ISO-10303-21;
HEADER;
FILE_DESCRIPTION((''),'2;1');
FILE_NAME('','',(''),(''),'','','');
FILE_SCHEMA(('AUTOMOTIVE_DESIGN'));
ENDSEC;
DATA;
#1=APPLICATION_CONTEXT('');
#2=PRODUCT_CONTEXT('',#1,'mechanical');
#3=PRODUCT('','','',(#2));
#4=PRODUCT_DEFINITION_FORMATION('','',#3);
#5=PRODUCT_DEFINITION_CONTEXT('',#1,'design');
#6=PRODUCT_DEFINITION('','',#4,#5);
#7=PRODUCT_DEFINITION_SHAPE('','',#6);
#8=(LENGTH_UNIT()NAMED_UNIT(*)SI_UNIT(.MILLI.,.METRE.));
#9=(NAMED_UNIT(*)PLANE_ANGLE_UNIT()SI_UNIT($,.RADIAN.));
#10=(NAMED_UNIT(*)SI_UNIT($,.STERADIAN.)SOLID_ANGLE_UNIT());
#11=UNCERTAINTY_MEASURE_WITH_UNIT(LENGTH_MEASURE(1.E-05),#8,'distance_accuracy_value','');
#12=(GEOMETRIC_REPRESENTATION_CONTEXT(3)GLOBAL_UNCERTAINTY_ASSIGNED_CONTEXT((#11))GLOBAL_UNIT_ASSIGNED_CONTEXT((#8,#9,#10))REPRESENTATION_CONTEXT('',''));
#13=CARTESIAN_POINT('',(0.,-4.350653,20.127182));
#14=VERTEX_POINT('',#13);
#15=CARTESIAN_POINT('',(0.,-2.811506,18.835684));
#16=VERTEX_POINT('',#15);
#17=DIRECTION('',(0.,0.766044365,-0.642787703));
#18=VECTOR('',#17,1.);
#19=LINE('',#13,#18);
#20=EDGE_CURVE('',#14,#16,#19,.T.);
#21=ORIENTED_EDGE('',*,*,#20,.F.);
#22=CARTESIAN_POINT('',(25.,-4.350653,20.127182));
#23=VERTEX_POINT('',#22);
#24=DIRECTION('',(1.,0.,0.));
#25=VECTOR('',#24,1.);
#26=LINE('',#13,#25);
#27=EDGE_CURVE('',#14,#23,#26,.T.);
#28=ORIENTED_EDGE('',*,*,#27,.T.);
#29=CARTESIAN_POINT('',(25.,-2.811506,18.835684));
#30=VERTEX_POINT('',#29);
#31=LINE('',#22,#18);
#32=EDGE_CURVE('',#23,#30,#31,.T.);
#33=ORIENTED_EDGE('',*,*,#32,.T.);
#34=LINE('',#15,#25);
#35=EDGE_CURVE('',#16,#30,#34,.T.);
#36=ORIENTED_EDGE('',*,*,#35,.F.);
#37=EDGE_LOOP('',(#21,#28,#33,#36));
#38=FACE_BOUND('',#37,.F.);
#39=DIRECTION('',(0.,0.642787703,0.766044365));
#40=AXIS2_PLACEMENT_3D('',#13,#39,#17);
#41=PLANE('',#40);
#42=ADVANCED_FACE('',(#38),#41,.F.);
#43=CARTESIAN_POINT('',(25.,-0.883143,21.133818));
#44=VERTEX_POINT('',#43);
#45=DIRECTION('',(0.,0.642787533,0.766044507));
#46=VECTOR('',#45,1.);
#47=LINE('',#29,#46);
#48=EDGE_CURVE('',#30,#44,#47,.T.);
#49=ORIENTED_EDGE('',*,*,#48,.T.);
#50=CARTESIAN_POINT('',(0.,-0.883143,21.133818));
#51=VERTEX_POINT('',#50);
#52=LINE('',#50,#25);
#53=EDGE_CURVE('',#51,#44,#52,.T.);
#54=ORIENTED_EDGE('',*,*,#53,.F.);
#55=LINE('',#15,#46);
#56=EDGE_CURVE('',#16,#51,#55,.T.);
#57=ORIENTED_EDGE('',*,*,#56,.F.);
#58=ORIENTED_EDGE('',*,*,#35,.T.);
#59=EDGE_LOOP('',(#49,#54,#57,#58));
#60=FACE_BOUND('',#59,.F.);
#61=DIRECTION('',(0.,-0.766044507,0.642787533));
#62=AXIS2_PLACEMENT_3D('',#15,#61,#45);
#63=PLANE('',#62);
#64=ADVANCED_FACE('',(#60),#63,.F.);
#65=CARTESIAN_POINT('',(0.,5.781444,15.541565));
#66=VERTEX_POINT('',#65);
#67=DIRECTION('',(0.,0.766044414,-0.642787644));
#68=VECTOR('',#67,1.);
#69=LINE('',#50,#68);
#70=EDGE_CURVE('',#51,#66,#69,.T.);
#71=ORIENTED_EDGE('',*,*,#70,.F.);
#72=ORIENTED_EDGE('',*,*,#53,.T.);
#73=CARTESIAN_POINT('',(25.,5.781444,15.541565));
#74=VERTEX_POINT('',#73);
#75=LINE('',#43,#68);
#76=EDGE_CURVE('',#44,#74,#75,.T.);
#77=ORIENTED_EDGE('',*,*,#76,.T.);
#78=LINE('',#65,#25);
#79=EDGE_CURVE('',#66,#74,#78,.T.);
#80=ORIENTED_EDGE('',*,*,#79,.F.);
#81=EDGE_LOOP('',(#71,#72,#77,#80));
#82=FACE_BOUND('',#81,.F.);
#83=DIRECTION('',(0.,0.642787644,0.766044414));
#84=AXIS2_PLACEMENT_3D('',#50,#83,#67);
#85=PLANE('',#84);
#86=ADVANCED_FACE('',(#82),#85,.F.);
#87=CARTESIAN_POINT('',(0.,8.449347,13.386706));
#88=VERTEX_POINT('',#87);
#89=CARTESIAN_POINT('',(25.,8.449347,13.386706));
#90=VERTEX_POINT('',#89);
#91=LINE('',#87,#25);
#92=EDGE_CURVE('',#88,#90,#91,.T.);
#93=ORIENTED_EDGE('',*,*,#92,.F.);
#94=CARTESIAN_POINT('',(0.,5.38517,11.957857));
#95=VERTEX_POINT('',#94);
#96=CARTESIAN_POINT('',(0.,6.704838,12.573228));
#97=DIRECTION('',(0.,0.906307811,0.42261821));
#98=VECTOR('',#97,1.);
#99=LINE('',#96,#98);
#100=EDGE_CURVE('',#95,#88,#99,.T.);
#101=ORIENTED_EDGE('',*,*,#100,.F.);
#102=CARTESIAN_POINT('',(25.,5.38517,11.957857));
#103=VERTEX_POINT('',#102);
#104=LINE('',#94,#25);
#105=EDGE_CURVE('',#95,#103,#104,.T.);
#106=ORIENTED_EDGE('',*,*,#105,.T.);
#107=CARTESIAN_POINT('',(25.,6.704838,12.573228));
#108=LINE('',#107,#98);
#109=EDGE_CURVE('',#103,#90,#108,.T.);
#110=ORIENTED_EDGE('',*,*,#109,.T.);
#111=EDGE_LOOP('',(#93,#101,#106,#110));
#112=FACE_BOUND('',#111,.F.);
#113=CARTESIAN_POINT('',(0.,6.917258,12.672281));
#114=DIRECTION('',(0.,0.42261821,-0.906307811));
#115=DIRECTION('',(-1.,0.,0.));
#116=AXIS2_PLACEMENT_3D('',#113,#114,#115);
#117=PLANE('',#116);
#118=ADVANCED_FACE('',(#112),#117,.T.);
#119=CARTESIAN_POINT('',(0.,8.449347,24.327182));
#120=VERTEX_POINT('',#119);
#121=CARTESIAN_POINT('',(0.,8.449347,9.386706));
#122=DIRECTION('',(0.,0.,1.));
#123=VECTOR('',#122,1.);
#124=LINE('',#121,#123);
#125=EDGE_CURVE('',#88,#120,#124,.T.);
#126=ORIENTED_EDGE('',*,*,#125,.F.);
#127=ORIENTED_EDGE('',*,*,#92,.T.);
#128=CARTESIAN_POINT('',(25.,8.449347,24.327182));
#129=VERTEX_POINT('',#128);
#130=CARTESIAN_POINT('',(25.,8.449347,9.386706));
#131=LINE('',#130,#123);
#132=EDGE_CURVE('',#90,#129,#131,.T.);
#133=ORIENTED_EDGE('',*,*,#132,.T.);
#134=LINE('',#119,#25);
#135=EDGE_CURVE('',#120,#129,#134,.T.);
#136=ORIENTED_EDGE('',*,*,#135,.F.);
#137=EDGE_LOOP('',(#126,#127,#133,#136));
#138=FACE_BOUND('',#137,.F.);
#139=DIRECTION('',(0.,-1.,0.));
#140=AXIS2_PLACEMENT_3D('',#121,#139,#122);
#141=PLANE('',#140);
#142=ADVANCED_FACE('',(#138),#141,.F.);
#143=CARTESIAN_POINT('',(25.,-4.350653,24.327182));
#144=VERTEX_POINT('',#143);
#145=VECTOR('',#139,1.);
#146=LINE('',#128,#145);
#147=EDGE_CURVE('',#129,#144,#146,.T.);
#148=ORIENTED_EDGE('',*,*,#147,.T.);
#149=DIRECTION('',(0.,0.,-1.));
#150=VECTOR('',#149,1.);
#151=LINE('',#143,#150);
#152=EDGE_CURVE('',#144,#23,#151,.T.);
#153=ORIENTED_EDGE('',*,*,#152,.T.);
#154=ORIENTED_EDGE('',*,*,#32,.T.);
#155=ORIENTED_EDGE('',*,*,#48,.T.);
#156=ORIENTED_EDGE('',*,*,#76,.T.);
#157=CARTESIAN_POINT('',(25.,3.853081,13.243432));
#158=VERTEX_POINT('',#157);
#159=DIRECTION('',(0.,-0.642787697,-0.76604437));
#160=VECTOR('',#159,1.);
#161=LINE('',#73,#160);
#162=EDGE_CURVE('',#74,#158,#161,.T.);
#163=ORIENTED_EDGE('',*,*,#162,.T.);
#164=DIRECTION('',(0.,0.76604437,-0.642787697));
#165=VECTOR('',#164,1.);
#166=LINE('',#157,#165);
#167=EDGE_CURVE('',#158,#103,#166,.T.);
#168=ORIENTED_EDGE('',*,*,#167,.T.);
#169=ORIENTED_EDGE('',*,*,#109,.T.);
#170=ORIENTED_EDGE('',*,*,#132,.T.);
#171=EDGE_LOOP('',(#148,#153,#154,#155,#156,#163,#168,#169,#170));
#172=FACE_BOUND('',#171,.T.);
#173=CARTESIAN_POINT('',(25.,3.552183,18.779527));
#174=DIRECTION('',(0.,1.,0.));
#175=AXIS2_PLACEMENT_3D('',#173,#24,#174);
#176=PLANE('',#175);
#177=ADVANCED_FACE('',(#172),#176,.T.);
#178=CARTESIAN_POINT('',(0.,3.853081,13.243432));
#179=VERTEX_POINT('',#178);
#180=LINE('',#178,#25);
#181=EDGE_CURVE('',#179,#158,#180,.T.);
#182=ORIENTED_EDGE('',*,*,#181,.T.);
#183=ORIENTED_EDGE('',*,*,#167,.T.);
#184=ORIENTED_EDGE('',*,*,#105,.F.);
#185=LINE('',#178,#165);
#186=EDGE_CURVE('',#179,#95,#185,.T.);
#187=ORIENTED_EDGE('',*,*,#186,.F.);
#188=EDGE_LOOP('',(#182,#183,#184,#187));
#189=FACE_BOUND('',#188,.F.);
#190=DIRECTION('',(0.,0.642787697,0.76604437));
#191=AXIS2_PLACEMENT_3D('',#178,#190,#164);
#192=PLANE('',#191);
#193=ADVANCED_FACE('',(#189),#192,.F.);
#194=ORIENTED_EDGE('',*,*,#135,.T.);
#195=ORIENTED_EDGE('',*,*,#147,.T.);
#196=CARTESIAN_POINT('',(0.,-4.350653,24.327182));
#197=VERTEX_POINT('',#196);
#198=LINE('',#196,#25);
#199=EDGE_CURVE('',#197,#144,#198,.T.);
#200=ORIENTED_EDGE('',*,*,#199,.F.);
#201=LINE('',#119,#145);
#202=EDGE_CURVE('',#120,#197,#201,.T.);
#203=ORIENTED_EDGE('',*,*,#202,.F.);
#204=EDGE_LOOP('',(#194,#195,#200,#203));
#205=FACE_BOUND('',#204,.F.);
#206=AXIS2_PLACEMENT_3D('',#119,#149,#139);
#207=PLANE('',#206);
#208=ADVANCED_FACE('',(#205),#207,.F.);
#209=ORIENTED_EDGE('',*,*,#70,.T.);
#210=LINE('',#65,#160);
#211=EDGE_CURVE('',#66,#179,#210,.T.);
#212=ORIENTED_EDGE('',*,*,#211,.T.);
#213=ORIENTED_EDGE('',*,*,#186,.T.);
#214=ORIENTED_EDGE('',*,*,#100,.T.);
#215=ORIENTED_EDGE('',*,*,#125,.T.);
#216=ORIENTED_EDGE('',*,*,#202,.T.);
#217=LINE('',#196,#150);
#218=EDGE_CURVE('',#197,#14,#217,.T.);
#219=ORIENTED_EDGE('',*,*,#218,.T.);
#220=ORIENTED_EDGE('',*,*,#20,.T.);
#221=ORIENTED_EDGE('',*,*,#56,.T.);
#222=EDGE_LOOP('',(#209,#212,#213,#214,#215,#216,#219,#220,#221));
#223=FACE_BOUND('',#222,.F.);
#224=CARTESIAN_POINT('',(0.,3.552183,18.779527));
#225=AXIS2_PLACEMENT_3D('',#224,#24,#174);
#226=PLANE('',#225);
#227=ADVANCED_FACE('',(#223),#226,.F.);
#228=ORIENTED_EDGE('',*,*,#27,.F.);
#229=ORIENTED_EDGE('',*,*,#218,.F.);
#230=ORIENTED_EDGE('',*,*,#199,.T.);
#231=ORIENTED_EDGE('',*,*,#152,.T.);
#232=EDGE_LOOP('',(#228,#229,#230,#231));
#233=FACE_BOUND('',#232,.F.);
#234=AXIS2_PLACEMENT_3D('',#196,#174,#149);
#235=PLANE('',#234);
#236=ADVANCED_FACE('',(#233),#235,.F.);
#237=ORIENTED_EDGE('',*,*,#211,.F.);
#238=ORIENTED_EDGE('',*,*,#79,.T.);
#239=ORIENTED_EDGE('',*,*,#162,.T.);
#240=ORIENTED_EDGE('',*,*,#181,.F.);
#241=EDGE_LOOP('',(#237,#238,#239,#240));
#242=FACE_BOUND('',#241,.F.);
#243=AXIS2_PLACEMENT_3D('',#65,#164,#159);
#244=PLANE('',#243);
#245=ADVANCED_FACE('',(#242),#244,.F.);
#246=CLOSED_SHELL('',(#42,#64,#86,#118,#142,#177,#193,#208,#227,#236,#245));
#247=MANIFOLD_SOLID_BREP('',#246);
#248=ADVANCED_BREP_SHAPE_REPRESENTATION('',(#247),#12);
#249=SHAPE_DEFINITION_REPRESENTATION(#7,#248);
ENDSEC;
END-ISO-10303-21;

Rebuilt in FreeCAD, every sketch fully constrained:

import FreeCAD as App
import Part
import Sketcher
from FreeCAD import Vector
Q = App.Units.Quantity


def edges_at(feature, points):
    """Names of the edges that pass closest to the given points."""
    edges = feature.Shape.Edges
    near = lambda p: min(range(len(edges)), key=lambda i: edges[i].distToShape(Part.Vertex(*p))[0])
    return sorted({f"Edge{near(p) + 1}" for p in points})


def add_polygon(sketch, points):
    """Adds a closed chain of lines whose ends are joined by coincident constraints."""
    first, n = sketch.GeometryCount, len(points)
    for a, b in zip(points, points[1:] + points[:1]):
        sketch.addGeometry(Part.LineSegment(App.Vector(*a, 0), App.Vector(*b, 0)), False)
    for i in range(n):
        sketch.addConstraint(Sketcher.Constraint("Coincident", first + i, 2, first + (i + 1) % n, 1))

doc = App.newDocument("Part")
body = doc.addObject("PartDesign::Body", "Body")

sketch1 = body.newObject("Sketcher::SketchObject", "Sketch")
sketch1.AttachmentSupport = (doc.getObject("YZ_Plane"), [""])
sketch1.MapMode = "FlatFace"
add_polygon(sketch1, [(8.449347, 24.327182), (-4.350653, 24.327182), (-4.350653, 20.127182), (-2.811506, 18.835684), (-0.883143, 21.133818), (5.781444, 15.541565), (3.853081, 13.243432), (8.449347, 9.386706)])
sketch1.addConstraint([
    Sketcher.Constraint("Horizontal", 0),
    Sketcher.Constraint("Vertical", 1),
    Sketcher.Constraint("Vertical", 7),
    Sketcher.Constraint("Perpendicular", 2, 3),
    Sketcher.Constraint("Perpendicular", 3, 4),
    Sketcher.Constraint("Perpendicular", 4, 5),
    Sketcher.Constraint("Perpendicular", 5, 6),
    Sketcher.Constraint("Equal", 3, 5),
    Sketcher.Constraint("Angle", 2, Q("-40.000007 deg")),
    Sketcher.Constraint("Distance", 3, Q("3.000001 mm")),
    Sketcher.Constraint("Distance", 6, Q("6 mm")),
    Sketcher.Constraint("DistanceX", 0, 2, 0, 1, Q("12.8 mm")),
    Sketcher.Constraint("DistanceY", 1, 2, 1, 1, Q("4.2 mm")),
    Sketcher.Constraint("Distance", 4, Q("8.700001 mm")),
    Sketcher.Constraint("DistanceY", -1, 1, 3, 2, Q("21.133818 mm")),
    Sketcher.Constraint("DistanceX", -1, 1, 5, 2, Q("3.853081 mm")),
])
pad1 = body.newObject("PartDesign::Pad", "Pad")
pad1.Profile = sketch1
pad1.Length = 25
doc.recompute()

chamfer = body.newObject("PartDesign::Chamfer", "Chamfer")
chamfer.Base = (pad1, edges_at(pad1, [(12.5, 8.449, 9.387)]))
chamfer.Size = 4

doc.recompute()
